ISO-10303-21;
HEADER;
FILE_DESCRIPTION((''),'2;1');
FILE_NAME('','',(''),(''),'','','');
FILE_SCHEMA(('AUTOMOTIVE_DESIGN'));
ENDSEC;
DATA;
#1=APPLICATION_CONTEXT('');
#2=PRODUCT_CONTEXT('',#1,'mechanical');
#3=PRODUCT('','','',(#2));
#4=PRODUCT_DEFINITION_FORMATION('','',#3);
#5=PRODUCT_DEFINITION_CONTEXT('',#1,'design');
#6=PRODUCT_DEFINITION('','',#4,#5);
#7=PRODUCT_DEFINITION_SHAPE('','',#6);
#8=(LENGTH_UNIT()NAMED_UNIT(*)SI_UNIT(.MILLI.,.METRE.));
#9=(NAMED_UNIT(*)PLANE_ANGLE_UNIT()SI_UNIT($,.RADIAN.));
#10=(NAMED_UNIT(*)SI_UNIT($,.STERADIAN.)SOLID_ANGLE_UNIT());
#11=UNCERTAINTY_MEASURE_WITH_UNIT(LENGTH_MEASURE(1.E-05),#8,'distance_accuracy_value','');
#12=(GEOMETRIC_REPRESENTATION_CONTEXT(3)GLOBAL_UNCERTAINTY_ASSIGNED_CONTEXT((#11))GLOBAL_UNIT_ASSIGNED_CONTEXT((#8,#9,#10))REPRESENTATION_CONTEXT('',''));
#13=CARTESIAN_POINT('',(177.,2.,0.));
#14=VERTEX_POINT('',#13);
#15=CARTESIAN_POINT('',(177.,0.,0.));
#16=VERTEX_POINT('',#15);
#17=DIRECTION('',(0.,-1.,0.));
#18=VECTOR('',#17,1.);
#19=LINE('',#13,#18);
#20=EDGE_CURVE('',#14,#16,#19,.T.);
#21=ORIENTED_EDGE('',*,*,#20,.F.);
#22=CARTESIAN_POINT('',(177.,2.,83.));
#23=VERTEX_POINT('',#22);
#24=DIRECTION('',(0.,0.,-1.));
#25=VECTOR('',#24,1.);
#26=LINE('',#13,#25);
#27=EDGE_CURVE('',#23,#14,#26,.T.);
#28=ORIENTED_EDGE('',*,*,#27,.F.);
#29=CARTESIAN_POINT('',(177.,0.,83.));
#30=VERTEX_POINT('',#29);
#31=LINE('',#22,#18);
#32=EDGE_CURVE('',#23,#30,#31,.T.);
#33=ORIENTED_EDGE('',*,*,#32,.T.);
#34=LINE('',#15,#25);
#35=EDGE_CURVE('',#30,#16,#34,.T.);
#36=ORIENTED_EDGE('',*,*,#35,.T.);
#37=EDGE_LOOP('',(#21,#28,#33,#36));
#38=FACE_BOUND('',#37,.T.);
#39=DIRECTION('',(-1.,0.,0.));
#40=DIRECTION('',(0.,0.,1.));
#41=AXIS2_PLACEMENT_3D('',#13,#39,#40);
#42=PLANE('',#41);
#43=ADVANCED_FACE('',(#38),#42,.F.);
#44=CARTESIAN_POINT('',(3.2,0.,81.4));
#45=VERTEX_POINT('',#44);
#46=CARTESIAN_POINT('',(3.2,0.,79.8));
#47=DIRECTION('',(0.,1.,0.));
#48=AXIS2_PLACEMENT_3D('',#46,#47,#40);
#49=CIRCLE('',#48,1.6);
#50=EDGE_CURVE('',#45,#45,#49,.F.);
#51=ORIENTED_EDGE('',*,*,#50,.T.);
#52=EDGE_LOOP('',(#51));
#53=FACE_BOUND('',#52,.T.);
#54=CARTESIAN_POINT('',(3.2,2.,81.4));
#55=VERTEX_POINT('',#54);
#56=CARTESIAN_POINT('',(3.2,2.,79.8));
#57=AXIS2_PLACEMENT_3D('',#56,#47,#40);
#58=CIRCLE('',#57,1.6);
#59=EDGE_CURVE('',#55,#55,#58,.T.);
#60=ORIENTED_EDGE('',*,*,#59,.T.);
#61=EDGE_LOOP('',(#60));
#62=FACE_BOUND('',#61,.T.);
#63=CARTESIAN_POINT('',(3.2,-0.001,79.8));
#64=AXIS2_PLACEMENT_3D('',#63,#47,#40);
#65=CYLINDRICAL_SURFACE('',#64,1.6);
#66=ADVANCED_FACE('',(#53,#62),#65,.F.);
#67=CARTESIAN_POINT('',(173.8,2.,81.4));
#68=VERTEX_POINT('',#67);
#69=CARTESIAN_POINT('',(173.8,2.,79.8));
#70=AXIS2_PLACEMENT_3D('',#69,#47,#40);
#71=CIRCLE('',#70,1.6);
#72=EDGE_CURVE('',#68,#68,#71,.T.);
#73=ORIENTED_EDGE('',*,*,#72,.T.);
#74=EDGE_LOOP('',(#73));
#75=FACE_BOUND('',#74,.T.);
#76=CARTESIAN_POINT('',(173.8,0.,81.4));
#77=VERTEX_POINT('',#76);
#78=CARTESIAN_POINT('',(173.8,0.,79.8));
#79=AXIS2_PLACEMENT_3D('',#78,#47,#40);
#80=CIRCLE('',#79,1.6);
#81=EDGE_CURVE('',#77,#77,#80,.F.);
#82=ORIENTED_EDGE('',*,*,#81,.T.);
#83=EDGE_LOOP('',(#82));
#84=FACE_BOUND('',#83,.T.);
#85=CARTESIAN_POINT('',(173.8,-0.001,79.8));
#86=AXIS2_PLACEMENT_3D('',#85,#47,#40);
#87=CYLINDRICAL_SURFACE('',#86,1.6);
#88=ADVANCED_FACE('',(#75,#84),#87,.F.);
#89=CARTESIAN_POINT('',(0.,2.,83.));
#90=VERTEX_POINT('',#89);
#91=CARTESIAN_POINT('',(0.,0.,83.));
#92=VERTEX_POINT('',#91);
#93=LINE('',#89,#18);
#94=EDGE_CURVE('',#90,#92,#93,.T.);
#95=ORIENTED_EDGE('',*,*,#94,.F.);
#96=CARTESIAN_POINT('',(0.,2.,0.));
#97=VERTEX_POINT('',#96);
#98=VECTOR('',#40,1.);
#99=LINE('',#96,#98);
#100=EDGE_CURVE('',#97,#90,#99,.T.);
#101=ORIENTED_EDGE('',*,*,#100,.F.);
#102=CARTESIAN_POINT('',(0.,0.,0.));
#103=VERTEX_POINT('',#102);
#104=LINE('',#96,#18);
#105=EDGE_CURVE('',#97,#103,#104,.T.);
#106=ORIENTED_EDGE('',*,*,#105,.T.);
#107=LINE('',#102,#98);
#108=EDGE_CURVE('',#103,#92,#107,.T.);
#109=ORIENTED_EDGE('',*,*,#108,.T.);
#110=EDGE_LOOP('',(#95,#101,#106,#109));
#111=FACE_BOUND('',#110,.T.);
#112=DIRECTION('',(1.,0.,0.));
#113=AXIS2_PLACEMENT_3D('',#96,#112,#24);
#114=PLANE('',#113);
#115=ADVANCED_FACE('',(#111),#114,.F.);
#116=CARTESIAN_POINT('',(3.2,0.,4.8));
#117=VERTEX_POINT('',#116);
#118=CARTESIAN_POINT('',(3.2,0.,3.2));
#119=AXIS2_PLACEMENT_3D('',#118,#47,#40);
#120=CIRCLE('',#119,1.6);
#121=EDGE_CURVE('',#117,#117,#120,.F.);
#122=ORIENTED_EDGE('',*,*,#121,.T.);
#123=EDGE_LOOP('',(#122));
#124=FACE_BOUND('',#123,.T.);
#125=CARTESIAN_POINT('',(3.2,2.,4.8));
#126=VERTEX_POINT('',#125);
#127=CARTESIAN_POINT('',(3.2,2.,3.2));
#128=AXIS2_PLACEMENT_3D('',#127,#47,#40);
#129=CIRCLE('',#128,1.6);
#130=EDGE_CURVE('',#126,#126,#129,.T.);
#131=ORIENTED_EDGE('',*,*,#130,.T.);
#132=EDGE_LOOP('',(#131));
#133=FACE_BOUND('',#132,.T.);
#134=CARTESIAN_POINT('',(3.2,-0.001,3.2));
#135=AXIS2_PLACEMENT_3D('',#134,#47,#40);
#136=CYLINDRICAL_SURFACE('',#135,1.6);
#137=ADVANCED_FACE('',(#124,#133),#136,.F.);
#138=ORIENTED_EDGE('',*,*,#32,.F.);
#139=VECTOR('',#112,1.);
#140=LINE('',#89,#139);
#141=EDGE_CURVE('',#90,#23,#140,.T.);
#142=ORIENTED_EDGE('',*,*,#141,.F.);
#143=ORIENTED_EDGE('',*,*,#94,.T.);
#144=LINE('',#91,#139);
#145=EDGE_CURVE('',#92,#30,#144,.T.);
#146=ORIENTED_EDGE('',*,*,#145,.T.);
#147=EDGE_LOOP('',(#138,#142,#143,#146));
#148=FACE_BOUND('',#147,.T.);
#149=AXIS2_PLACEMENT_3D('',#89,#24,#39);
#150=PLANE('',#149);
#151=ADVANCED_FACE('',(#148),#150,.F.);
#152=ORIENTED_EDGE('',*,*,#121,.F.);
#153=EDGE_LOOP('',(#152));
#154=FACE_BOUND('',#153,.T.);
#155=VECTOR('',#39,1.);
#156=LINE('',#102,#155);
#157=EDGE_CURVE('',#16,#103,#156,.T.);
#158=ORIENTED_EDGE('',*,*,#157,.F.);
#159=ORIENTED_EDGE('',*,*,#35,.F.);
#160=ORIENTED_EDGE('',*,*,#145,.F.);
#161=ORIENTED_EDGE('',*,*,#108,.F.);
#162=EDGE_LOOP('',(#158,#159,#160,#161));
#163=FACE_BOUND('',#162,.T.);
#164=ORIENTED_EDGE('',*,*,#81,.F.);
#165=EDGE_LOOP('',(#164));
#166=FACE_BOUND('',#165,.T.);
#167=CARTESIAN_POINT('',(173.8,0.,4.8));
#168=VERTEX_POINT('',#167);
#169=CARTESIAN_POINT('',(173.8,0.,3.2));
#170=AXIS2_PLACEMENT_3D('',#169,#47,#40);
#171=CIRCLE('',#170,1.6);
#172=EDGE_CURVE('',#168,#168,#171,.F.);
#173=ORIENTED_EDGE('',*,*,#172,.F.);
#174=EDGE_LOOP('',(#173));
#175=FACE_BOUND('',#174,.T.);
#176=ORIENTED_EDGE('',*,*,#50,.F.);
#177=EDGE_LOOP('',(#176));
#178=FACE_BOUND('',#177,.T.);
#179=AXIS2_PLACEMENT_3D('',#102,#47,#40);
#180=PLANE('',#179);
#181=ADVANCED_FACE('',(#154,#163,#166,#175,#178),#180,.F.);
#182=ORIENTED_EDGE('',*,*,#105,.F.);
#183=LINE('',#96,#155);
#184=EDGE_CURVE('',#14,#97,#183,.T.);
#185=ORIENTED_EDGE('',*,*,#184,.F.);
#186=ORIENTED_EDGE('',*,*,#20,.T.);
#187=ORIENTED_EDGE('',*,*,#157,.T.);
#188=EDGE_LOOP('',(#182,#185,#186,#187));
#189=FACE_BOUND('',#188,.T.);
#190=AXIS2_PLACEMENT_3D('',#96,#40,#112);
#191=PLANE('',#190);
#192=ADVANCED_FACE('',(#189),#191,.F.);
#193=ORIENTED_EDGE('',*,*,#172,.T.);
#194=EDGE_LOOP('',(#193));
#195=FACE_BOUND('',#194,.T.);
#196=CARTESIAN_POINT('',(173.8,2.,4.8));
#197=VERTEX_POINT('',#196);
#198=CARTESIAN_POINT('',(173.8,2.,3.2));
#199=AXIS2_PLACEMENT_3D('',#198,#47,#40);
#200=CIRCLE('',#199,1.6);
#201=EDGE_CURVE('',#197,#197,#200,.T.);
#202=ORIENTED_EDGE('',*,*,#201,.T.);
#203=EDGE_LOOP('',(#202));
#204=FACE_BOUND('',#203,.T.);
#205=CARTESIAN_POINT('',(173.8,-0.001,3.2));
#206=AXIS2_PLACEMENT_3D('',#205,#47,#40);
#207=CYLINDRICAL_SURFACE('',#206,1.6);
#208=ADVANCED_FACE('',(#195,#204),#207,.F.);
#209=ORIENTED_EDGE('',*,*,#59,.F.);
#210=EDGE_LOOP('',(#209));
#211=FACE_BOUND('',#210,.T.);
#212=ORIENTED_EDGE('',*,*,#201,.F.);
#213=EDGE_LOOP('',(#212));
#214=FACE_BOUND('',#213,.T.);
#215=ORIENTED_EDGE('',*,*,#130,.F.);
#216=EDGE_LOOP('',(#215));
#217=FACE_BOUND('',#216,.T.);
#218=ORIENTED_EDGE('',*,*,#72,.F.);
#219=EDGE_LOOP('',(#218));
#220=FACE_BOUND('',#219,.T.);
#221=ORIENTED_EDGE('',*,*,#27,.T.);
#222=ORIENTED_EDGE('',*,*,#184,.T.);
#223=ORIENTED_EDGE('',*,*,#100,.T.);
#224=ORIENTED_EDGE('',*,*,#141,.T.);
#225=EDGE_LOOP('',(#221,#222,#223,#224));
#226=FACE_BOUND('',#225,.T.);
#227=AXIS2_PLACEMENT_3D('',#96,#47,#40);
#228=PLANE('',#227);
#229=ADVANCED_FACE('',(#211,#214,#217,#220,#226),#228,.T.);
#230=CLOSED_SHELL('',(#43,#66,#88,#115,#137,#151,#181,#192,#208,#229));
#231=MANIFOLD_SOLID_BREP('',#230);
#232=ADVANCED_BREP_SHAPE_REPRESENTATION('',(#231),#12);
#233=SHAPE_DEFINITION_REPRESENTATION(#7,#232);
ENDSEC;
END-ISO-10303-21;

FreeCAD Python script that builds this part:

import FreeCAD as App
import Part
import Sketcher

doc = App.newDocument("Part")
body = doc.addObject("PartDesign::Body", "Body")

# Sketch on XZ plane
sketch1 = body.newObject("Sketcher::SketchObject", "Sketch")
sketch1.AttachmentSupport = (doc.getObject("XZ_Plane"), [""])
sketch1.MapMode = "FlatFace"
sketch1.addGeometry([
    Part.LineSegment(App.Vector(0, 0, 0), App.Vector(0, 83, 0)),
    Part.LineSegment(App.Vector(0, 83, 0), App.Vector(177, 83, 0)),
    Part.LineSegment(App.Vector(177, 83, 0), App.Vector(177, 0, 0)),
    Part.LineSegment(App.Vector(177, 0, 0), App.Vector(0, 0, 0)),
], False)
sketch1.addConstraint([
    Sketcher.Constraint("Coincident", 0, 2, 1, 1),
    Sketcher.Constraint("Coincident", 1, 2, 2, 1),
    Sketcher.Constraint("Coincident", 2, 2, 3, 1),
    Sketcher.Constraint("Coincident", 3, 2, 0, 1),
    Sketcher.Constraint("Vertical", 0),
    Sketcher.Constraint("Horizontal", 1),
    Sketcher.Constraint("Vertical", 2),
    Sketcher.Constraint("Horizontal", 3),
    Sketcher.Constraint("Coincident", 3, 2, -1, 1),
    Sketcher.Constraint("DistanceX", 1, 1, 1, 2, 177.0),
    Sketcher.Constraint("DistanceY", 0, 1, 0, 2, 83.0),
])
pad1 = body.newObject("PartDesign::Pad", "Pad")
pad1.Profile = sketch1
pad1.Length = 2
pad1.Reversed = True

# Sketch on XZ plane
sketch2 = body.newObject("Sketcher::SketchObject", "Sketch001")
sketch2.AttachmentSupport = (doc.getObject("XZ_Plane"), [""])
sketch2.MapMode = "FlatFace"
sketch2.AttachmentOffset = App.Placement(App.Vector(0, 0, -2), App.Rotation())
sketch2.addGeometry(Part.Circle(App.Vector(3.2, 3.2, 0), App.Vector(0, 0, 1), 1.6), False)
sketch2.addConstraint([
    Sketcher.Constraint("Diameter", 0, 3.2),
    Sketcher.Constraint("DistanceX", -1, 1, 0, 3, 3.2),
    Sketcher.Constraint("DistanceY", -1, 1, 0, 3, 3.2),
])
pocket1 = body.newObject("PartDesign::Pocket", "Pocket")
pocket1.Profile = sketch2
pocket1.Type = "UpToFirst"
pocket1.Reversed = True

# Sketch on XZ plane
sketch3 = body.newObject("Sketcher::SketchObject", "Sketch002")
sketch3.AttachmentSupport = (doc.getObject("XZ_Plane"), [""])
sketch3.MapMode = "FlatFace"
sketch3.AttachmentOffset = App.Placement(App.Vector(0, 0, -2), App.Rotation())
sketch3.addGeometry(Part.Circle(App.Vector(3.2, 79.8, 0), App.Vector(0, 0, 1), 1.6), False)
sketch3.addConstraint([
    Sketcher.Constraint("Diameter", 0, 3.2),
    Sketcher.Constraint("DistanceX", -1, 1, 0, 3, 3.2),
    Sketcher.Constraint("DistanceY", -1, 1, 0, 3, 79.8),
])
pocket2 = body.newObject("PartDesign::Pocket", "Pocket001")
pocket2.Profile = sketch3
pocket2.Type = "UpToFirst"
pocket2.Reversed = True

# Sketch on XZ plane
sketch4 = body.newObject("Sketcher::SketchObject", "Sketch003")
sketch4.AttachmentSupport = (doc.getObject("XZ_Plane"), [""])
sketch4.MapMode = "FlatFace"
sketch4.AttachmentOffset = App.Placement(App.Vector(0, 0, -2), App.Rotation())
sketch4.addGeometry(Part.Circle(App.Vector(173.8, 3.2, 0), App.Vector(0, 0, 1), 1.6), False)
sketch4.addConstraint([
    Sketcher.Constraint("Diameter", 0, 3.2),
    Sketcher.Constraint("DistanceX", -1, 1, 0, 3, 173.8),
    Sketcher.Constraint("DistanceY", -1, 1, 0, 3, 3.2),
])
pocket3 = body.newObject("PartDesign::Pocket", "Pocket002")
pocket3.Profile = sketch4
pocket3.Type = "UpToFirst"
pocket3.Reversed = True

# Sketch on XZ plane
sketch5 = body.newObject("Sketcher::SketchObject", "Sketch004")
sketch5.AttachmentSupport = (doc.getObject("XZ_Plane"), [""])
sketch5.MapMode = "FlatFace"
sketch5.AttachmentOffset = App.Placement(App.Vector(0, 0, -2), App.Rotation())
sketch5.addGeometry(Part.Circle(App.Vector(173.8, 79.8, 0), App.Vector(0, 0, 1), 1.6), False)
sketch5.addConstraint([
    Sketcher.Constraint("Diameter", 0, 3.2),
    Sketcher.Constraint("DistanceX", -1, 1, 0, 3, 173.8),
    Sketcher.Constraint("DistanceY", -1, 1, 0, 3, 79.8),
])
pocket4 = body.newObject("PartDesign::Pocket", "Pocket003")
pocket4.Profile = sketch5
pocket4.Type = "UpToFirst"
pocket4.Reversed = True

doc.recompute()
